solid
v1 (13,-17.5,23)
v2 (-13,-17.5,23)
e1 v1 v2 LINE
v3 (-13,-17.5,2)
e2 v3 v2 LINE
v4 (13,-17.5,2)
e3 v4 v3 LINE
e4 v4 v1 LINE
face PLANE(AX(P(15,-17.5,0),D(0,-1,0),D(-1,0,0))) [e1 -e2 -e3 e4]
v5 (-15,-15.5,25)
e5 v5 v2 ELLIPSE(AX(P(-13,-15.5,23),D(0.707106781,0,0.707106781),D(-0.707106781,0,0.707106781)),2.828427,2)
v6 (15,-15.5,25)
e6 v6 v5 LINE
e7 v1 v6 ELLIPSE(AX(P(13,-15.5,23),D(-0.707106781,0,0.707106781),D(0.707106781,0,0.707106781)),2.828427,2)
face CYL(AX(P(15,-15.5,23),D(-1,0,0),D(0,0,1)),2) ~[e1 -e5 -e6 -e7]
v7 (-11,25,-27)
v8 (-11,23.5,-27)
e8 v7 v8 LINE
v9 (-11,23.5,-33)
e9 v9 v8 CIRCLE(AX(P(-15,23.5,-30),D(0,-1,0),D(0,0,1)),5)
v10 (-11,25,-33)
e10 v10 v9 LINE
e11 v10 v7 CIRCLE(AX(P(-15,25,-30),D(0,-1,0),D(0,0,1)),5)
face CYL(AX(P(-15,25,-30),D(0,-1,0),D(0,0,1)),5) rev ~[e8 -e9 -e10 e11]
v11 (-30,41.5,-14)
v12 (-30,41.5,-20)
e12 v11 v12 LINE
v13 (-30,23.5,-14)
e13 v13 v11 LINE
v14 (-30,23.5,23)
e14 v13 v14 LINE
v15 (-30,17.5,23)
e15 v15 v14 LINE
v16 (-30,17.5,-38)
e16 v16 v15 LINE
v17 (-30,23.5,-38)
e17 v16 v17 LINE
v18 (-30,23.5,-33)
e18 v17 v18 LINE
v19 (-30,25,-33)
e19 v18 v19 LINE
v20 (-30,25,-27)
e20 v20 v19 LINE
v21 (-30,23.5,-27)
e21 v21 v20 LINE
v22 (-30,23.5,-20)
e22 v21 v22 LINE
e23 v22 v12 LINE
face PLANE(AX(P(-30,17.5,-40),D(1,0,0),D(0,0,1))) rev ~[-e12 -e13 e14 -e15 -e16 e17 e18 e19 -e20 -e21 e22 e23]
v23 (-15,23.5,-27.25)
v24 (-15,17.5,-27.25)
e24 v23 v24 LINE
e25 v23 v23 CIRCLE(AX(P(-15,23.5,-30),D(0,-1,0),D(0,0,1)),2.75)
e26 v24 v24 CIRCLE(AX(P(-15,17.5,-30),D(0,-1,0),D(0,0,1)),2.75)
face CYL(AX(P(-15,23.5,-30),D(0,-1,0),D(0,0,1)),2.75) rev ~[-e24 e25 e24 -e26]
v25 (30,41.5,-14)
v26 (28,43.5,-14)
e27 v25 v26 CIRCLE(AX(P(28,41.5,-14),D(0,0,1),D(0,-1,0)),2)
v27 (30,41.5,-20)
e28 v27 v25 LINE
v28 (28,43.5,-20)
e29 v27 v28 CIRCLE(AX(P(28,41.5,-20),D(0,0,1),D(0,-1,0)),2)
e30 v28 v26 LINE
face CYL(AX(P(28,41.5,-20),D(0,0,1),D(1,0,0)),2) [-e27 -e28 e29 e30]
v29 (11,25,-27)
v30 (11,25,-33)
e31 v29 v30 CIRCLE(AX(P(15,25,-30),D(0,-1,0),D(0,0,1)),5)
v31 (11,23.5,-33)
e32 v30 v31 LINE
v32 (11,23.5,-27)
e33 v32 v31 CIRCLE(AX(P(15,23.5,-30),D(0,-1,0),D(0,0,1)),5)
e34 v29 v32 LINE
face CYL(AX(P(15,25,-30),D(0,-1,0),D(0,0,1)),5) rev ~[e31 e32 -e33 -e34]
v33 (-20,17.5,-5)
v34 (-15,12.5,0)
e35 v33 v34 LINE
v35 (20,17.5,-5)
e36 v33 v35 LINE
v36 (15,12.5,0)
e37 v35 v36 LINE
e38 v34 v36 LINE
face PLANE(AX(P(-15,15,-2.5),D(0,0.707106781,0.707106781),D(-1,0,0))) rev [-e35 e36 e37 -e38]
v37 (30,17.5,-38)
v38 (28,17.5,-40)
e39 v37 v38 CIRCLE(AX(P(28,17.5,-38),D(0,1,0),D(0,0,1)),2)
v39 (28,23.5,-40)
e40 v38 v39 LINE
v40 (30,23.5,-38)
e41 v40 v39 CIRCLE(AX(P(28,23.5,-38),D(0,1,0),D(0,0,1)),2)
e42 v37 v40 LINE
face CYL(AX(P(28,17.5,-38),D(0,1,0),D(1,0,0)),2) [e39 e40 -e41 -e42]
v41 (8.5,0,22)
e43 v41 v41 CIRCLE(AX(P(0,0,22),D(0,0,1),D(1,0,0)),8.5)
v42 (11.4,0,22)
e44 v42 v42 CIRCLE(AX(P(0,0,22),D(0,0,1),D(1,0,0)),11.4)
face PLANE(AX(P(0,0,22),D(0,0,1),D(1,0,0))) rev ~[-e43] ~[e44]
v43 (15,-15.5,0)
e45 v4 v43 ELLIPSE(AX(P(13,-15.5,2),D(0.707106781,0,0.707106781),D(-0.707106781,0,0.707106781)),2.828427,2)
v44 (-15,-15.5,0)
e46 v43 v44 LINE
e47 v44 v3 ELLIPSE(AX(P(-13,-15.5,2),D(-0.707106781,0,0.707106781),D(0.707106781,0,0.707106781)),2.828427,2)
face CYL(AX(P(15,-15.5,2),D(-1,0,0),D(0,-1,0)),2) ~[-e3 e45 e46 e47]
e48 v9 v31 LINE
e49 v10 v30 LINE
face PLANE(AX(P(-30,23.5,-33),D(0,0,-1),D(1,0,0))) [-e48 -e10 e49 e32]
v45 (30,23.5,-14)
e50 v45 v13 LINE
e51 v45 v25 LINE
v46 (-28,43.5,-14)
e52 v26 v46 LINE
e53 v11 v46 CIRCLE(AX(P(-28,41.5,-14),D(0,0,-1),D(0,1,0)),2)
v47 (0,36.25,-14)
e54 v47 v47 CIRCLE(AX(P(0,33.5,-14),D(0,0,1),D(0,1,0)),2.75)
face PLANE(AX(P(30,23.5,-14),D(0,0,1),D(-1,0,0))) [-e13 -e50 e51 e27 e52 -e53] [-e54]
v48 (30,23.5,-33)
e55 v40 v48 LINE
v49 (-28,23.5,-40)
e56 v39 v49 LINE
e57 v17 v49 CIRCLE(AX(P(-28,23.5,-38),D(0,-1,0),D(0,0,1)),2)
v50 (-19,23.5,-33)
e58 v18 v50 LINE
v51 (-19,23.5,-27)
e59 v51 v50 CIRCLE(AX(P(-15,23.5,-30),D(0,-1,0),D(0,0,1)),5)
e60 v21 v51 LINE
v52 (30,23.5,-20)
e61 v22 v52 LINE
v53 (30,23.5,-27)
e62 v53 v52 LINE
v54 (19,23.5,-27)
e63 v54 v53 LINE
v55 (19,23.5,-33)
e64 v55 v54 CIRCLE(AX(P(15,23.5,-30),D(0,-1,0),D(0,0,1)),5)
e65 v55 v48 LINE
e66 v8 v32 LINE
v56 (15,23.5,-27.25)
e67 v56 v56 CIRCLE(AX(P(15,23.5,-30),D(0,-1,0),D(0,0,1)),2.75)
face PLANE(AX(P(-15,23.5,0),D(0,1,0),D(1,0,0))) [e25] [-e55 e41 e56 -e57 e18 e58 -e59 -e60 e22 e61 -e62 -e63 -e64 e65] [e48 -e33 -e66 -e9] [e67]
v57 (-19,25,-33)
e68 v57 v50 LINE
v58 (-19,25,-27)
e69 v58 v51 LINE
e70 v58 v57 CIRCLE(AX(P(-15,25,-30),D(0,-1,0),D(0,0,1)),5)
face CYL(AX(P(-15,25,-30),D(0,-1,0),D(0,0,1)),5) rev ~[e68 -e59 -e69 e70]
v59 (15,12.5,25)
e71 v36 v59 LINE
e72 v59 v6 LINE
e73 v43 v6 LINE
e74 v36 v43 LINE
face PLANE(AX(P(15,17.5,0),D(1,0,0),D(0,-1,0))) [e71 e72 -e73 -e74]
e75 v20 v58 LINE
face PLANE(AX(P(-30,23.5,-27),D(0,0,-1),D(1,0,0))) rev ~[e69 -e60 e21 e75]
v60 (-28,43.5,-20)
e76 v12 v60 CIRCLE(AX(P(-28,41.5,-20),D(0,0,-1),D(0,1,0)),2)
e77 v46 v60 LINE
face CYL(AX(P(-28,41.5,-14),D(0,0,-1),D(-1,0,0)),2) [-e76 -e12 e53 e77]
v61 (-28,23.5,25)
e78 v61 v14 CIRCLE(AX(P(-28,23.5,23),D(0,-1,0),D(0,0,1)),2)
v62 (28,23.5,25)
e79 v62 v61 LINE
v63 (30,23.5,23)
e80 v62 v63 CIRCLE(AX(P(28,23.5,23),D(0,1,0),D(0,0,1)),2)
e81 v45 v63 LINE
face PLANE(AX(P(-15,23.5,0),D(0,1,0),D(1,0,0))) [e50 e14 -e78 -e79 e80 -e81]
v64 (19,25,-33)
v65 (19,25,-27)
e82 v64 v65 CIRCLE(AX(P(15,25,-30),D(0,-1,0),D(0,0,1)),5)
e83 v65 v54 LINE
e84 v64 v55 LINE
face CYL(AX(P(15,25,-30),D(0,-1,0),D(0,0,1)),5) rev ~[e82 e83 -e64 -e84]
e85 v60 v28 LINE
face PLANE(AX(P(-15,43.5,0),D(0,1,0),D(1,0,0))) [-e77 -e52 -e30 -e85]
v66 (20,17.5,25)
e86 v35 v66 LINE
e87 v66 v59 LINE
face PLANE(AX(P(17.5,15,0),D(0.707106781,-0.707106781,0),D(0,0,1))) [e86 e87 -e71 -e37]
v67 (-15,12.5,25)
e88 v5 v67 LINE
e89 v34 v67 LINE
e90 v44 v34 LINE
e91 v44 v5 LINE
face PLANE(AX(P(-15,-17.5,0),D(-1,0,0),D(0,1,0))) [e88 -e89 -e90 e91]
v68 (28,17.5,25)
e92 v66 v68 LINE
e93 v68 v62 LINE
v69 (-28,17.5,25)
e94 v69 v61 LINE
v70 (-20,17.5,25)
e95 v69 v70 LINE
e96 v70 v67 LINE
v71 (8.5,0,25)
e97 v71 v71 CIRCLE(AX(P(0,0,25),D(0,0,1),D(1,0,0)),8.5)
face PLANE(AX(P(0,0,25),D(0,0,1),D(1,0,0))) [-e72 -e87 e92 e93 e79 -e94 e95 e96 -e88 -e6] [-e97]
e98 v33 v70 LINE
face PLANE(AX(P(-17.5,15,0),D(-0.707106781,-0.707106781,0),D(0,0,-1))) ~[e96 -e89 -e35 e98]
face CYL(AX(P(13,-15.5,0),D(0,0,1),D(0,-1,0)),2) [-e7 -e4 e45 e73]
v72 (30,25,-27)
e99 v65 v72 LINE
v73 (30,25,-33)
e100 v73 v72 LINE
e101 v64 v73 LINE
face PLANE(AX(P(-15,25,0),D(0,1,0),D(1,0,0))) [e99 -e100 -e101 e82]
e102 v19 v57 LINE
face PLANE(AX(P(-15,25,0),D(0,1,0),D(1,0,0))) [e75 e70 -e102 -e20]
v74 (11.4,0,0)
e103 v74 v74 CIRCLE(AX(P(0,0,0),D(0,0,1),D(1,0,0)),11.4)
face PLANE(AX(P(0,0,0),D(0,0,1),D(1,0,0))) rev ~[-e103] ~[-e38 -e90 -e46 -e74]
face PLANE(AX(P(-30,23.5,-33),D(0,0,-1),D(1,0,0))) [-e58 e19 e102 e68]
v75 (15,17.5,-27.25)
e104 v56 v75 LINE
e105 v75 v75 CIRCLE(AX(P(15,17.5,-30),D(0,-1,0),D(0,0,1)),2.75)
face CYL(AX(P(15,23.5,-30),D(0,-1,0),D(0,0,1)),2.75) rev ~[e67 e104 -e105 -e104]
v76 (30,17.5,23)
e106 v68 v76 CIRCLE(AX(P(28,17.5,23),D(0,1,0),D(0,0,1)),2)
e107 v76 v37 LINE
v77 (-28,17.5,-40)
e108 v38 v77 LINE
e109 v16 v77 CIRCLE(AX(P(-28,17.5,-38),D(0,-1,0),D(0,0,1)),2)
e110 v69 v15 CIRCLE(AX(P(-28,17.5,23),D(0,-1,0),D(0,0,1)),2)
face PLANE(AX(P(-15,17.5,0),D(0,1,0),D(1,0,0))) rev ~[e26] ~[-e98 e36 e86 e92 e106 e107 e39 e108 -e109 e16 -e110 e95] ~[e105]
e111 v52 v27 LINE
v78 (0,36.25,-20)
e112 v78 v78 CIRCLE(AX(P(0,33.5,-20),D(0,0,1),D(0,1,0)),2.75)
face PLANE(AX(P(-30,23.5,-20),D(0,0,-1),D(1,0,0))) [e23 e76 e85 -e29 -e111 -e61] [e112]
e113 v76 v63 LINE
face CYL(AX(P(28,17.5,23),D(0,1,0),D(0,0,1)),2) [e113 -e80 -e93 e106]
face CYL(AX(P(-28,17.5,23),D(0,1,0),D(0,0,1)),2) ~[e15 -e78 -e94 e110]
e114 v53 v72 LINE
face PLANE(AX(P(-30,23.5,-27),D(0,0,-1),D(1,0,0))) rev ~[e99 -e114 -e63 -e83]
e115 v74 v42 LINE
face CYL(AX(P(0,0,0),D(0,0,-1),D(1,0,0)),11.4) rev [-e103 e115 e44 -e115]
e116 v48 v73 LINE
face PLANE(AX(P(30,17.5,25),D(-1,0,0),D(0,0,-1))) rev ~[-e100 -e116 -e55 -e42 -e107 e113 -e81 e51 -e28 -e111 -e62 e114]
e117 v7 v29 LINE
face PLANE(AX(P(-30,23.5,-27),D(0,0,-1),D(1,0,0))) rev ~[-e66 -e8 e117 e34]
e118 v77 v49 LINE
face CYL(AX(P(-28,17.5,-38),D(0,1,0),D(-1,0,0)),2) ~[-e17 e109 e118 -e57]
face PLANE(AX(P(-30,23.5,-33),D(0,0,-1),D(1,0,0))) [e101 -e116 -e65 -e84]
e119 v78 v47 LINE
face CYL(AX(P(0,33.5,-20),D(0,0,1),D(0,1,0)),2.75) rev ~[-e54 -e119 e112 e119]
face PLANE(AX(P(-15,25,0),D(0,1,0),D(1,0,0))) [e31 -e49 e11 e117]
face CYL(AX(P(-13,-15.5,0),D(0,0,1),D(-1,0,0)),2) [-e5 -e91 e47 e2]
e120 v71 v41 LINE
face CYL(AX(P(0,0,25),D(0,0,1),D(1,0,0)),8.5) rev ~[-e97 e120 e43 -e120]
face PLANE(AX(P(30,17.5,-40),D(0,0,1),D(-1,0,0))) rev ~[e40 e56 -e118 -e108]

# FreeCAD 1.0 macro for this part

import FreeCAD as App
import Part
import Sketcher
from FreeCAD import Vector
Q = App.Units.Quantity


def edges_at(feature, points):
    """Names of the edges that pass closest to the given points."""
    edges = feature.Shape.Edges
    near = lambda p: min(range(len(edges)), key=lambda i: edges[i].distToShape(Part.Vertex(*p))[0])
    return sorted({f"Edge{near(p) + 1}" for p in points})


def add_polygon(sketch, points):
    """Adds a closed chain of lines whose ends are joined by coincident constraints."""
    first, n = sketch.GeometryCount, len(points)
    for a, b in zip(points, points[1:] + points[:1]):
        sketch.addGeometry(Part.LineSegment(App.Vector(*a, 0), App.Vector(*b, 0)), False)
    for i in range(n):
        sketch.addConstraint(Sketcher.Constraint("Coincident", first + i, 2, first + (i + 1) % n, 1))

doc = App.newDocument("Part")
body = doc.addObject("PartDesign::Body", "Body")

# Sketch on XY plane
sketch1 = body.newObject("Sketcher::SketchObject", "Sketch")
sketch1.AttachmentSupport = (doc.getObject("XY_Plane"), [""])
sketch1.MapMode = "FlatFace"
add_polygon(sketch1, [(15, 18), (-15, 18), (-15, -18), (15, -18)])  # lines 0-3
sketch1.addGeometry(Part.Circle(Vector(0, 0, 0), Vector(0, 0, 1), 11), False)  # 4
sketch1.addConstraint([
    Sketcher.Constraint("Horizontal", 0),
    Sketcher.Constraint("Vertical", 1),
    Sketcher.Constraint("Horizontal", 2),
    Sketcher.Constraint("Vertical", 3),
    Sketcher.Constraint("Coincident", 4, 3, -1, 1),
    Sketcher.Constraint("Symmetric", 0, 2, 2, 2, -1, 1),
    Sketcher.Constraint("Diameter", 4, Q("22.8 mm")),
    Sketcher.Constraint("DistanceX", 0, 2, 0, 1, Q("30 mm")),
    Sketcher.Constraint("DistanceY", 1, 2, 1, 1, Q("35 mm")),
])
pad1 = body.newObject("PartDesign::Pad", "Pad")
pad1.Profile = sketch1
pad1.Length = 25

# Sketch on XZ plane
sketch2 = body.newObject("Sketcher::SketchObject", "Sketch001")
sketch2.AttachmentSupport = (doc.getObject("XZ_Plane"), [""])
sketch2.MapMode = "FlatFace"
sketch2.AttachmentOffset = App.Placement(Vector(0, 0, -17.5), App.Rotation())
add_polygon(sketch2, [(30, 25), (30, -40), (-30, -40), (-30, 25)])  # lines 0-3
sketch2.addConstraint([
    Sketcher.Constraint("Vertical", 0),
    Sketcher.Constraint("Horizontal", 1),
    Sketcher.Constraint("Vertical", 2),
    Sketcher.Constraint("Horizontal", 3),
    Sketcher.Constraint("DistanceX", 1, 2, 1, 1, Q("60 mm")),
    Sketcher.Constraint("DistanceY", 0, 2, 0, 1, Q("65 mm")),
    Sketcher.Constraint("DistanceX", -1, 1, 0, 2, Q("30 mm")),
    Sketcher.Constraint("DistanceY", 0, 2, -1, 1, Q("40 mm")),
])
pad2 = body.newObject("PartDesign::Pad", "Pad001")
pad2.Profile = sketch2
pad2.Length = 6
pad2.Reversed = True

# Sketch on XY plane
sketch3 = body.newObject("Sketcher::SketchObject", "Sketch002")
sketch3.AttachmentSupport = (doc.getObject("XY_Plane"), [""])
sketch3.MapMode = "FlatFace"
sketch3.AttachmentOffset = App.Placement(Vector(0, 0, 25), App.Rotation())
sketch3.addGeometry([
    Part.Circle(Vector(0, 0, 0), Vector(0, 0, 1), 11),
    Part.Circle(Vector(0, 0, 0), Vector(0, 0, 1), 8),
], False)
sketch3.addConstraint([
    Sketcher.Constraint("Coincident", 0, 3, -1, 1),
    Sketcher.Constraint("Coincident", 1, 3, -1, 1),
    Sketcher.Constraint("Diameter", 1, Q("17 mm")),
    Sketcher.Constraint("Diameter", 0, Q("22.8 mm")),
])
pad3 = body.newObject("PartDesign::Pad", "Pad002")
pad3.Profile = sketch3
pad3.Length = 3
pad3.Reversed = True
doc.recompute()

chamfer = body.newObject("PartDesign::Chamfer", "Chamfer")
chamfer.Base = (pad3, edges_at(pad3, [(15, 17.5, 12.5), (-15, 17.5, 12.5), (0, 17.5, 0)]))
chamfer.Size = 5

# Sketch on XZ plane
sketch4 = body.newObject("Sketcher::SketchObject", "Sketch003")
sketch4.AttachmentSupport = (doc.getObject("XZ_Plane"), [""])
sketch4.MapMode = "FlatFace"
sketch4.AttachmentOffset = App.Placement(Vector(0, 0, -23.5), App.Rotation())
add_polygon(sketch4, [(30, -33), (-30, -33), (-30, -27), (30, -27)])  # lines 0-3
sketch4.addConstraint([
    Sketcher.Constraint("Horizontal", 0),
    Sketcher.Constraint("Vertical", 1),
    Sketcher.Constraint("Horizontal", 2),
    Sketcher.Constraint("Vertical", 3),
    Sketcher.Constraint("DistanceX", 0, 2, 0, 1, Q("60 mm")),
    Sketcher.Constraint("DistanceY", 1, 1, 1, 2, Q("6 mm")),
    Sketcher.Constraint("DistanceX", 0, 2, -1, 1, Q("30 mm")),
    Sketcher.Constraint("DistanceY", 0, 2, -1, 1, Q("33 mm")),
])
pad4 = body.newObject("PartDesign::Pad", "Pad003")
pad4.Profile = sketch4
pad4.Length = 1.5
pad4.Reversed = True

# Sketch on XZ plane
sketch5 = body.newObject("Sketcher::SketchObject", "Sketch004")
sketch5.AttachmentSupport = (doc.getObject("XZ_Plane"), [""])
sketch5.MapMode = "FlatFace"
sketch5.AttachmentOffset = App.Placement(Vector(0, 0, -23.5), App.Rotation())
add_polygon(sketch5, [(30, -20), (-30, -20), (-30, -14), (30, -14)])  # lines 0-3
sketch5.addConstraint([
    Sketcher.Constraint("Horizontal", 0),
    Sketcher.Constraint("Vertical", 1),
    Sketcher.Constraint("Horizontal", 2),
    Sketcher.Constraint("Vertical", 3),
    Sketcher.Constraint("DistanceY", 1, 1, 1, 2, Q("6 mm")),
    Sketcher.Constraint("DistanceY", 0, 2, -1, 1, Q("20 mm")),
    Sketcher.Constraint("DistanceX", 0, 2, 0, 1, Q("60 mm")),
    Sketcher.Constraint("DistanceX", 0, 2, -1, 1, Q("30 mm")),
])
pad5 = body.newObject("PartDesign::Pad", "Pad004")
pad5.Profile = sketch5
pad5.Length = 20
pad5.Reversed = True

# Sketch on XZ plane
sketch6 = body.newObject("Sketcher::SketchObject", "Sketch005")
sketch6.AttachmentSupport = (doc.getObject("XZ_Plane"), [""])
sketch6.MapMode = "FlatFace"
sketch6.AttachmentOffset = App.Placement(Vector(0, 0, -25), App.Rotation())
sketch6.addGeometry([
    Part.Circle(Vector(-15, -30, 0), Vector(0, 0, 1), 2.8),
    Part.Circle(Vector(15, -30, 0), Vector(0, 0, 1), 2.8),
], False)
sketch6.addConstraint([
    Sketcher.Constraint("Equal", 0, 1),
    Sketcher.Constraint("Symmetric", 0, 3, 1, 3, -2),
    Sketcher.Constraint("Diameter", 0, Q("5.5 mm")),
    Sketcher.Constraint("DistanceX", 0, 3, -1, 1, Q("15 mm")),
    Sketcher.Constraint("DistanceY", 0, 3, -1, 1, Q("30 mm")),
])
doc.recompute()
hole = body.newObject("PartDesign::Hole", "Hole")
hole.Profile = sketch6
hole.ThreadType = "None"
hole.Diameter = 5.5
hole.DepthType = "ThroughAll"
hole.HoleCutType = "Counterbore"
hole.HoleCutDiameter = 10
hole.HoleCutDepth = 1.5
hole.Reversed = True

# Sketch on XY plane
sketch7 = body.newObject("Sketcher::SketchObject", "Sketch006")
sketch7.AttachmentSupport = (doc.getObject("XY_Plane"), [""])
sketch7.MapMode = "FlatFace"
sketch7.AttachmentOffset = App.Placement(Vector(0, 0, -20), App.Rotation())
sketch7.addGeometry(Part.Circle(Vector(0, 33.5, 0), Vector(0, 0, 1), 2.8), False)
sketch7.addConstraint([
    Sketcher.Constraint("PointOnObject", 0, 3, -2),
    Sketcher.Constraint("Diameter", 0, Q("5.5 mm")),
    Sketcher.Constraint("DistanceY", -1, 1, 0, 3, Q("33.5 mm")),
])
doc.recompute()
hole2 = body.newObject("PartDesign::Hole", "Hole001")
hole2.Profile = sketch7
hole2.ThreadType = "None"
hole2.Diameter = 5.5
hole2.DepthType = "ThroughAll"
hole2.Reversed = True
doc.recompute()

fillet = body.newObject("PartDesign::Fillet", "Fillet")
fillet.Base = (hole2, edges_at(hole2, [
    (-30, 20.5, -40),
    (30, 20.5, -40),
    (-30, 20.5, 25),
    (30, 20.5, 25),
    (30, 43.5, -17),
    (-30, 43.5, -17),
    (-15, -17.5, 12.5),
    (15, -17.5, 12.5),
    (0, -17.5, 25),
    (0, -17.5, 0),
]))
fillet.Radius = 2

doc.recompute()
